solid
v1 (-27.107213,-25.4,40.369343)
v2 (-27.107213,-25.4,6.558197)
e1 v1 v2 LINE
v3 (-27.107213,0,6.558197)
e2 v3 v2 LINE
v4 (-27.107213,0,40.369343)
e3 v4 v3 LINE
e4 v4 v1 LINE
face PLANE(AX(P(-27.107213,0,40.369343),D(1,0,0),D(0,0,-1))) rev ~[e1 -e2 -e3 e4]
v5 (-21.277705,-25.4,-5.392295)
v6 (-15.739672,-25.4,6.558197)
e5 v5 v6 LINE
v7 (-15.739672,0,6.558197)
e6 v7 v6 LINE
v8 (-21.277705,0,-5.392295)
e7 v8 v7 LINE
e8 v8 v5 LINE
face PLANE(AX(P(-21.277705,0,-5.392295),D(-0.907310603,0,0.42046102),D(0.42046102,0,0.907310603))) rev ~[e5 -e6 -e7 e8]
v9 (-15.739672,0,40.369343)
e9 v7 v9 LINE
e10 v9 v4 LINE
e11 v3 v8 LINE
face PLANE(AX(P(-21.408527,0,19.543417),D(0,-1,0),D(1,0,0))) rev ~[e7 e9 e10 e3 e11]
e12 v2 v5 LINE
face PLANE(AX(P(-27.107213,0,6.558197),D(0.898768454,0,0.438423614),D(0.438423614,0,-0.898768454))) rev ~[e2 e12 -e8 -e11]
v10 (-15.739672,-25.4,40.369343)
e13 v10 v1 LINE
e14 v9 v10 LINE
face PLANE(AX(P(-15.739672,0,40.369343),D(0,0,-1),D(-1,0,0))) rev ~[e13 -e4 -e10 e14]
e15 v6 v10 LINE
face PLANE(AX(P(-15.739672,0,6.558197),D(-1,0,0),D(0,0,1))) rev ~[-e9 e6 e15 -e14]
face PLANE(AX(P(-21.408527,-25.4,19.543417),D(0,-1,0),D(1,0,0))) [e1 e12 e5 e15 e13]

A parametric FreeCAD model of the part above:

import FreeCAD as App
import Part
import Sketcher
from FreeCAD import Vector
Q = App.Units.Quantity


def add_polygon(sketch, points):
    """Adds a closed chain of lines whose ends are joined by coincident constraints."""
    first, n = sketch.GeometryCount, len(points)
    for a, b in zip(points, points[1:] + points[:1]):
        sketch.addGeometry(Part.LineSegment(App.Vector(*a, 0), App.Vector(*b, 0)), False)
    for i in range(n):
        sketch.addConstraint(Sketcher.Constraint("Coincident", first + i, 2, first + (i + 1) % n, 1))

doc = App.newDocument("Part")
body = doc.addObject("PartDesign::Body", "Body")

sketch1 = body.newObject("Sketcher::SketchObject", "Sketch")
sketch1.AttachmentSupport = (doc.getObject("XZ_Plane"), [""])
sketch1.MapMode = "FlatFace"
add_polygon(sketch1, [(-15.739672, 6.558197), (-15.739672, 40.369343), (-27.107213, 40.369343), (-27.107213, 6.558197), (-21.277705, -5.392295)])
sketch1.addConstraint([
    Sketcher.Constraint("Vertical", 0),
    Sketcher.Constraint("Horizontal", 1),
    Sketcher.Constraint("Vertical", 2),
    Sketcher.Constraint("Horizontal", 2, 2, 4, 2),
    Sketcher.Constraint("DistanceX", 1, 2, 1, 1, 11.367541),
    Sketcher.Constraint("Distance", 3, 13.296519),
    Sketcher.Constraint("DistanceY", 0, 1, 0, 2, 33.811146),
    Sketcher.Constraint("DistanceX", 2, 2, 3, 2, 5.829508),
    Sketcher.Constraint("DistanceX", 0, 2, -1, 1, 15.739672),
    Sketcher.Constraint("DistanceY", -1, 1, 0, 2, 40.369343),
])
pad1 = body.newObject("PartDesign::Pad", "Pad")
pad1.Profile = sketch1
pad1.Length = Q("1 in")

doc.recompute()
